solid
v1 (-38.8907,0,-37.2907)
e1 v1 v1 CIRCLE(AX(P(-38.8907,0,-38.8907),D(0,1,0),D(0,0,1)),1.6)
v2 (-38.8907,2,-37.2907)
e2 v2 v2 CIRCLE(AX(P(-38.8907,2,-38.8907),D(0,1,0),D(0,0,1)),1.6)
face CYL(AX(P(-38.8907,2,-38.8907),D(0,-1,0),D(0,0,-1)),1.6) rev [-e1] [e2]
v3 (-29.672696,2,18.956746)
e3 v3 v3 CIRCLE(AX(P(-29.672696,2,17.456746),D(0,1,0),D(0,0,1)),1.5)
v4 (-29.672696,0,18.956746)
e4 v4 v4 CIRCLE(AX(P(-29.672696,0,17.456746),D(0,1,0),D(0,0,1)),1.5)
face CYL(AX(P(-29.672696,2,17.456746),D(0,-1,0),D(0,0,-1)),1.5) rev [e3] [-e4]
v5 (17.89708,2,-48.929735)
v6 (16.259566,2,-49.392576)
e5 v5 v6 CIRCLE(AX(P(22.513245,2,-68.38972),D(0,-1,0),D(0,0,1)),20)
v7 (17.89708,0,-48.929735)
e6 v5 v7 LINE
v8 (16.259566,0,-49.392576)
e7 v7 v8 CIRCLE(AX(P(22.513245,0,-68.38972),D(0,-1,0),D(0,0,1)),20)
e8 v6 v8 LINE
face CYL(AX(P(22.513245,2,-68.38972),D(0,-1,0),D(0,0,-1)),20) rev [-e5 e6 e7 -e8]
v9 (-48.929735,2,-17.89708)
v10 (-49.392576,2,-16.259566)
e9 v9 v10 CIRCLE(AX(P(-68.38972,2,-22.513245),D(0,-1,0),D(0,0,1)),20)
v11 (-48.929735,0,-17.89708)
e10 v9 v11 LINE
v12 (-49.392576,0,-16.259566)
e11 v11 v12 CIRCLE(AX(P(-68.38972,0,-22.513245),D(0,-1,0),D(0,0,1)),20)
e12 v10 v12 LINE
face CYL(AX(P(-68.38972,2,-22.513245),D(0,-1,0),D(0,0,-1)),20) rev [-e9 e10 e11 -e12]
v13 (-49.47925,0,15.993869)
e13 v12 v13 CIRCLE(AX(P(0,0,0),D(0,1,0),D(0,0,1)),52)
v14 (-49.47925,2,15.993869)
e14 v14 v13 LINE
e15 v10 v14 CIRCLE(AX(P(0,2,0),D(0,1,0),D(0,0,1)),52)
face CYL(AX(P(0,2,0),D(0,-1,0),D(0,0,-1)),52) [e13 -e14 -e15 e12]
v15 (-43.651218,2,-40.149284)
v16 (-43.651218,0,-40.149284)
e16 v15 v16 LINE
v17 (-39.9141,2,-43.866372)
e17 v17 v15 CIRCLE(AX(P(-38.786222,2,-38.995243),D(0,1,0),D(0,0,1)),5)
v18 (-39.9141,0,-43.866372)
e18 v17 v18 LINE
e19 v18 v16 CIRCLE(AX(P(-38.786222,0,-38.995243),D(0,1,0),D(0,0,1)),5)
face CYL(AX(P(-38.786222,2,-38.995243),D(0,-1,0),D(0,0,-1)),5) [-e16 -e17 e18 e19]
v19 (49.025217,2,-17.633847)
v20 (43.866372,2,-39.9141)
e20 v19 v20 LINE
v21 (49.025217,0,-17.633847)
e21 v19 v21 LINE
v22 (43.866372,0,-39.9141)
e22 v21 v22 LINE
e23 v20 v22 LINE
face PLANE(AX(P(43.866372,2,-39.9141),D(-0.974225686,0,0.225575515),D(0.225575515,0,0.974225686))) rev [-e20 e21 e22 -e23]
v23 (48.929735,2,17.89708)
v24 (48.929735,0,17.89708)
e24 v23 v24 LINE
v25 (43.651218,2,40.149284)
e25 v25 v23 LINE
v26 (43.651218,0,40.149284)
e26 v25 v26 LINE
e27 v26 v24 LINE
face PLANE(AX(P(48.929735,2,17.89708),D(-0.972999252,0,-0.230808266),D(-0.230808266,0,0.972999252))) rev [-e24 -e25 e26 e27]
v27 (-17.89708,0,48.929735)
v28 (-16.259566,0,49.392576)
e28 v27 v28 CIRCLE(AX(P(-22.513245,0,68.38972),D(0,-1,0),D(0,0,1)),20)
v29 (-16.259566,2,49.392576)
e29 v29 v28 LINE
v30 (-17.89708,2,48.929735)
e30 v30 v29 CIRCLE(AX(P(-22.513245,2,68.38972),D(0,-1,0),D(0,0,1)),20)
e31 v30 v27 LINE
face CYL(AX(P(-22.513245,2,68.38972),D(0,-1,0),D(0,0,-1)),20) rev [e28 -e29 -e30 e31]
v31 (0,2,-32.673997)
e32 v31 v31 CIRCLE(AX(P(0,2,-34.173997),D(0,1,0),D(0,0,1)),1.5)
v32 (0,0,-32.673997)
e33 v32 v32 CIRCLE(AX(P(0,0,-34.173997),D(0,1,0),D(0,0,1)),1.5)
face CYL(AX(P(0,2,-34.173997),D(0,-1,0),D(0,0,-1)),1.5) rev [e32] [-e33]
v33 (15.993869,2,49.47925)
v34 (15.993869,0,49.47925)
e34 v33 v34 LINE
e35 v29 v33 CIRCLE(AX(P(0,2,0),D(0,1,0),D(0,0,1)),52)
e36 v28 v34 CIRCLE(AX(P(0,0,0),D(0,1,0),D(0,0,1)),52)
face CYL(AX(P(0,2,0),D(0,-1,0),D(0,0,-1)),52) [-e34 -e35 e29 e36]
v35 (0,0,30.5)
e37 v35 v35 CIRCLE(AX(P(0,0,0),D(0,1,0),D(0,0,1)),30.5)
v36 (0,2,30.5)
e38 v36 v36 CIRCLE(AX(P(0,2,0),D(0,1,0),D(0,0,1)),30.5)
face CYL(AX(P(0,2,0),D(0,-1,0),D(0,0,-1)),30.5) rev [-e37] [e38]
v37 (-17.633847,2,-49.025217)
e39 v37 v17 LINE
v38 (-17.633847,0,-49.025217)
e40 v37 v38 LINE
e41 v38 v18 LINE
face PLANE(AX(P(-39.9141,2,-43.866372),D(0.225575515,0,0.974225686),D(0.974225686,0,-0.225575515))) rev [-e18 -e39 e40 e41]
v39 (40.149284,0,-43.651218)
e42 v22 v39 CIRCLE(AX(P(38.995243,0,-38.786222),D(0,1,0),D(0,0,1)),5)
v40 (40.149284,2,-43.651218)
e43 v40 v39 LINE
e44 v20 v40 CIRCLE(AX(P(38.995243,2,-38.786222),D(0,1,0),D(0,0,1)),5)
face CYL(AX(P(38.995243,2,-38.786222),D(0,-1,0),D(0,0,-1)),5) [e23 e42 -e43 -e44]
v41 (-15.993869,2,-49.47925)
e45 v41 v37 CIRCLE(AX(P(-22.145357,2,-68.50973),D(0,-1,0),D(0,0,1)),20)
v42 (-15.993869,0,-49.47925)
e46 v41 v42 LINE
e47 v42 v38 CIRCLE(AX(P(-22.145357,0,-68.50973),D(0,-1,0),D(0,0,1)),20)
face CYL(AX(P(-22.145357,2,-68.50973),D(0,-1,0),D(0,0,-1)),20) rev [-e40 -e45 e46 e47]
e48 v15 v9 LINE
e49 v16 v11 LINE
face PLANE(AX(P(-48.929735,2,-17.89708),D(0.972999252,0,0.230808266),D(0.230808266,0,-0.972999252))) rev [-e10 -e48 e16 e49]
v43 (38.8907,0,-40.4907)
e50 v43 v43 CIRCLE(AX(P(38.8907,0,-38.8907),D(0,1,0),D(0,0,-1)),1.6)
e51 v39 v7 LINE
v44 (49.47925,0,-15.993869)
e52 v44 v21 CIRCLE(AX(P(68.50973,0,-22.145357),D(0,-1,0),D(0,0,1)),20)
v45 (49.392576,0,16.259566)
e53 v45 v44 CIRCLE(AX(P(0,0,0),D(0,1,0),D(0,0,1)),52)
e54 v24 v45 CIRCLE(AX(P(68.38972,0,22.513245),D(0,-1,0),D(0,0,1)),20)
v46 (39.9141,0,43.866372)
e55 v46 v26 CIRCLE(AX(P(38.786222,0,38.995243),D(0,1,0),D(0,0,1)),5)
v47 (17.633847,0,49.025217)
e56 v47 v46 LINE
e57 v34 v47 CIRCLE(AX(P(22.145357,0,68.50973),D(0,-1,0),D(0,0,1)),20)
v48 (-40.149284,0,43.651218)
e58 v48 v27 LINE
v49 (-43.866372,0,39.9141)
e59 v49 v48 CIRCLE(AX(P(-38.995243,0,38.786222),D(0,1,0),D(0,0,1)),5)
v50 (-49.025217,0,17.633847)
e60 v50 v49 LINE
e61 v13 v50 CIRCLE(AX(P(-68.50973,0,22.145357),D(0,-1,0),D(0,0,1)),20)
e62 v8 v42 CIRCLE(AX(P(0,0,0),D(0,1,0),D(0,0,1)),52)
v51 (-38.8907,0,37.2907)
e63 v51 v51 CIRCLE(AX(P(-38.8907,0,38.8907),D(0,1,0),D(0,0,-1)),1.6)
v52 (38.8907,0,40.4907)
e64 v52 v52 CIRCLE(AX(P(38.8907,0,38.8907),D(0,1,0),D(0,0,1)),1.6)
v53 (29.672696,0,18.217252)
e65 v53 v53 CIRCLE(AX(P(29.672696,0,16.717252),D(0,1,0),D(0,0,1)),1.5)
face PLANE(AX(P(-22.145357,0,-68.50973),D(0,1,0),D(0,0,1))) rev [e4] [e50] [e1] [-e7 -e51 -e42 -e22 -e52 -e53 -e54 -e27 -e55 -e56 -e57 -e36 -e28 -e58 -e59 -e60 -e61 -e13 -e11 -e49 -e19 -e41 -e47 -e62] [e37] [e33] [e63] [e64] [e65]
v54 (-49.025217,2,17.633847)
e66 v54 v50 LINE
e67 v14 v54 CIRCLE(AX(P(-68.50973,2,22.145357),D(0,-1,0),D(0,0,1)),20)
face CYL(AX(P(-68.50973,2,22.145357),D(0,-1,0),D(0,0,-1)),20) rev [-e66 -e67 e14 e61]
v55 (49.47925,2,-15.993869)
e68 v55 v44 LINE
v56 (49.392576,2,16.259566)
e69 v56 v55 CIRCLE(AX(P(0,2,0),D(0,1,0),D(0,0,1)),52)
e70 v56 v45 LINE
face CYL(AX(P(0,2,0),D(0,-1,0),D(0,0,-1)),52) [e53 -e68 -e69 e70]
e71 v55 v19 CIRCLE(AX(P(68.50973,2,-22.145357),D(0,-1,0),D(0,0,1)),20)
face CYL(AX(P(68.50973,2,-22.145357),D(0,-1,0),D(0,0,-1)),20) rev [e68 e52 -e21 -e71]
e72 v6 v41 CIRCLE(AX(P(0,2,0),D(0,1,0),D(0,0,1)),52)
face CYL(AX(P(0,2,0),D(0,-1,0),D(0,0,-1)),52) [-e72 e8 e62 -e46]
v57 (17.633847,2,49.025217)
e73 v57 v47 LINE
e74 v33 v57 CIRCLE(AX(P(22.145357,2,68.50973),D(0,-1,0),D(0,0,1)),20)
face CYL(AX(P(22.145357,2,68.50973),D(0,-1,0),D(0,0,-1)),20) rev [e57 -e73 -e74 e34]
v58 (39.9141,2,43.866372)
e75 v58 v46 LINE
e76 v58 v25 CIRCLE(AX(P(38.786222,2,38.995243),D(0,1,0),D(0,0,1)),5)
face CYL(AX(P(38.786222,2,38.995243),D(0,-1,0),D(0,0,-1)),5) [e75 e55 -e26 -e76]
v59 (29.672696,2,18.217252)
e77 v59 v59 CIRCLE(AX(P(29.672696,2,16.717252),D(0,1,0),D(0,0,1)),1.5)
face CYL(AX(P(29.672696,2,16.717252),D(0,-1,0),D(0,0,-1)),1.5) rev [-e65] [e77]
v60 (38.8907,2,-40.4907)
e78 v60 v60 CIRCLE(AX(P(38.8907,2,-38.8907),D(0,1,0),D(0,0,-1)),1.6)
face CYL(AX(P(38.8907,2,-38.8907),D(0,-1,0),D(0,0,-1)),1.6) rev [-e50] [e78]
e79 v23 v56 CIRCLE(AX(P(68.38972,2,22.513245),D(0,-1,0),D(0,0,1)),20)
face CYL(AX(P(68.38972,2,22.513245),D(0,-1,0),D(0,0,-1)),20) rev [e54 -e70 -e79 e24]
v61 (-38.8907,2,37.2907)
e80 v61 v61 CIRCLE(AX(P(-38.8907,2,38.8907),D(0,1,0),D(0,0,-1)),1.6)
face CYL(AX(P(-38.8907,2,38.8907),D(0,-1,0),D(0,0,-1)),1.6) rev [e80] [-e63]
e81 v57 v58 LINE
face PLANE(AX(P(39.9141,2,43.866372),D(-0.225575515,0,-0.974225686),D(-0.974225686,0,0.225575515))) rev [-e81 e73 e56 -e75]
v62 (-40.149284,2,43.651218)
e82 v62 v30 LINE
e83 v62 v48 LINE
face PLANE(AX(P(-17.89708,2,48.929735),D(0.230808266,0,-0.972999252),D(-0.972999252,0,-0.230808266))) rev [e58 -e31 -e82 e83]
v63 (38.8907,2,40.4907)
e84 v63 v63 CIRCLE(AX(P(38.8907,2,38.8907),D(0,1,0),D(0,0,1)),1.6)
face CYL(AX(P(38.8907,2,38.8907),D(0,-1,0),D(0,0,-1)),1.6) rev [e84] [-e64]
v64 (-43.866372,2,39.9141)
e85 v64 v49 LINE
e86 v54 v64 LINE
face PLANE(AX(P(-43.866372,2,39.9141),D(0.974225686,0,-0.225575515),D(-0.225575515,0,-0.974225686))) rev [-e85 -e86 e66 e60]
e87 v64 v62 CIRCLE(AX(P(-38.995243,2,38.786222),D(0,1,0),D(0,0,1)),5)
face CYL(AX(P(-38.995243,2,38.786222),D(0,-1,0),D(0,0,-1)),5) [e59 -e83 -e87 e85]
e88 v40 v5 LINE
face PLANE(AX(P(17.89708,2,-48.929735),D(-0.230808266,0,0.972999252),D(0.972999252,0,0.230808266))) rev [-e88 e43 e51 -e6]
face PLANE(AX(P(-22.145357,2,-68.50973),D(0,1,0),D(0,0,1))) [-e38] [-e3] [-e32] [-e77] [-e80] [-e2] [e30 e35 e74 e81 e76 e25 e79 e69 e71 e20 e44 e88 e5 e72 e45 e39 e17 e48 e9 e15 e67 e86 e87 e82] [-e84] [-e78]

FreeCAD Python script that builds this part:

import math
import FreeCAD as App
import Part
import Sketcher
from FreeCAD import Vector
Q = App.Units.Quantity

doc = App.newDocument("Part")
body = doc.addObject("PartDesign::Body", "Body")

# Sketch on XZ plane
sketch1 = body.newObject("Sketcher::SketchObject", "Sketch")
sketch1.AttachmentSupport = (doc.getObject("XZ_Plane"), [""])
sketch1.MapMode = "FlatFace"
sketch1.addGeometry(Part.LineSegment(Vector(40.1, -43.7, 0), Vector(17.9, -48.9, 0)), False)
sketch1.addGeometry(Part.ArcOfCircle(Part.Circle(Vector(22.5, -68.4, 0), Vector(0, 0, 1), 20), math.radians(103.34), math.radians(108.22)), False)
sketch1.addGeometry(Part.ArcOfCircle(Part.Circle(Vector(0, 0, 0), Vector(0, 0, 1), 52), math.radians(-89.85), math.radians(-71.78)), False)
sketch1.addGeometry(Part.ArcOfCircle(Part.Circle(Vector(0, 0, 0), Vector(0, 0, 1), 52), math.radians(-107.91), math.radians(-89.85)), False)
sketch1.addGeometry(Part.ArcOfCircle(Part.Circle(Vector(-22.1, -68.5, 0), Vector(0, 0, 1), 20), math.radians(72.09), math.radians(76.96)), False)
sketch1.addGeometry(Part.LineSegment(Vector(-17.6, -49, 0), Vector(-39.9, -43.9, 0)), False)
sketch1.addGeometry(Part.ArcOfCircle(Part.Circle(Vector(-38.8, -39, 0), Vector(0, 0, 1), 5), math.radians(-167), math.radians(-103)), False)
sketch1.addGeometry(Part.LineSegment(Vector(-43.7, -40.1, 0), Vector(-48.9, -17.9, 0)), False)
sketch1.addGeometry(Part.ArcOfCircle(Part.Circle(Vector(-68.4, -22.5, 0), Vector(0, 0, 1), 20), math.radians(13.34), math.radians(18.22)), False)
sketch1.addGeometry(Part.ArcOfCircle(Part.Circle(Vector(0, 0, 0), Vector(0, 0, 1), 52), math.radians(162), math.radians(198)), False)
sketch1.addGeometry(Part.ArcOfCircle(Part.Circle(Vector(-68.5, 22.1, 0), Vector(0, 0, 1), 20), math.radians(-17.91), math.radians(-13.04)), False)
sketch1.addGeometry(Part.LineSegment(Vector(-49, 17.6, 0), Vector(-43.9, 39.9, 0)), False)
sketch1.addGeometry(Part.ArcOfCircle(Part.Circle(Vector(-39, 38.8, 0), Vector(0, 0, 1), 5), math.radians(103), math.radians(167)), False)
sketch1.addGeometry(Part.LineSegment(Vector(-40.1, 43.7, 0), Vector(-17.9, 48.9, 0)), False)
sketch1.addGeometry(Part.ArcOfCircle(Part.Circle(Vector(-22.5, 68.4, 0), Vector(0, 0, 1), 20), math.radians(-76.66), math.radians(-71.78)), False)
sketch1.addGeometry(Part.ArcOfCircle(Part.Circle(Vector(0, 0, 0), Vector(0, 0, 1), 52), math.radians(72), math.radians(108)), False)
sketch1.addGeometry(Part.ArcOfCircle(Part.Circle(Vector(22.1, 68.5, 0), Vector(0, 0, 1), 20), math.radians(-107.91), math.radians(-103.04)), False)
sketch1.addGeometry(Part.LineSegment(Vector(17.6, 49, 0), Vector(39.9, 43.9, 0)), False)
sketch1.addGeometry(Part.ArcOfCircle(Part.Circle(Vector(38.8, 39, 0), Vector(0, 0, 1), 5), math.radians(13), math.radians(77)), False)
sketch1.addGeometry(Part.LineSegment(Vector(43.7, 40.1, 0), Vector(48.9, 17.9, 0)), False)
sketch1.addGeometry(Part.ArcOfCircle(Part.Circle(Vector(68.4, 22.5, 0), Vector(0, 0, 1), 20), math.radians(-166.66), math.radians(-161.78)), False)
sketch1.addGeometry(Part.ArcOfCircle(Part.Circle(Vector(0, 0, 0), Vector(0, 0, 1), 52), math.radians(-18), math.radians(18)), False)
sketch1.addGeometry(Part.ArcOfCircle(Part.Circle(Vector(68.5, -22.1, 0), Vector(0, 0, 1), 20), math.radians(162.09), math.radians(166.96)), False)
sketch1.addGeometry(Part.LineSegment(Vector(49, -17.6, 0), Vector(43.9, -39.9, 0)), False)
sketch1.addGeometry(Part.ArcOfCircle(Part.Circle(Vector(39, -38.8, 0), Vector(0, 0, 1), 5), math.radians(-77), math.radians(-13)), False)
sketch1.addGeometry(Part.Circle(Vector(38.9, 38.9, 0), Vector(0, 0, 1), 1.6), False)
sketch1.addGeometry(Part.Circle(Vector(29.7, 16.7, 0), Vector(0, 0, 1), 1.5), False)
sketch1.addGeometry(Part.Circle(Vector(-38.9, 38.9, 0), Vector(0, 0, 1), 1.6), False)
sketch1.addGeometry(Part.Circle(Vector(-29.7, 17.5, 0), Vector(0, 0, 1), 1.5), False)
sketch1.addGeometry(Part.Circle(Vector(38.9, -38.9, 0), Vector(0, 0, 1), 1.6), False)
sketch1.addGeometry(Part.Circle(Vector(0, 0, 0), Vector(0, 0, 1), 30.5), False)
sketch1.addGeometry(Part.Circle(Vector(0, -34.2, 0), Vector(0, 0, 1), 1.5), False)
sketch1.addGeometry(Part.Circle(Vector(-38.9, -38.9, 0), Vector(0, 0, 1), 1.6), False)
sketch1.addConstraint(Sketcher.Constraint("Tangent", 0, 2, 1, 1))
sketch1.addConstraint(Sketcher.Constraint("Tangent", 1, 2, 2, 2))
sketch1.addConstraint(Sketcher.Constraint("Tangent", 2, 1, 3, 2))
sketch1.addConstraint(Sketcher.Constraint("Tangent", 3, 1, 4, 1))
sketch1.addConstraint(Sketcher.Constraint("Tangent", 4, 2, 5, 1))
sketch1.addConstraint(Sketcher.Constraint("Tangent", 5, 2, 6, 2))
sketch1.addConstraint(Sketcher.Constraint("Tangent", 6, 1, 7, 1))
sketch1.addConstraint(Sketcher.Constraint("Tangent", 7, 2, 8, 1))
sketch1.addConstraint(Sketcher.Constraint("Tangent", 8, 2, 9, 2))
sketch1.addConstraint(Sketcher.Constraint("Tangent", 9, 1, 10, 1))
sketch1.addConstraint(Sketcher.Constraint("Tangent", 10, 2, 11, 1))
sketch1.addConstraint(Sketcher.Constraint("Tangent", 11, 2, 12, 2))
sketch1.addConstraint(Sketcher.Constraint("Tangent", 12, 1, 13, 1))
sketch1.addConstraint(Sketcher.Constraint("Tangent", 13, 2, 14, 1))
sketch1.addConstraint(Sketcher.Constraint("Tangent", 14, 2, 15, 2))
sketch1.addConstraint(Sketcher.Constraint("Tangent", 15, 1, 16, 1))
sketch1.addConstraint(Sketcher.Constraint("Tangent", 16, 2, 17, 1))
sketch1.addConstraint(Sketcher.Constraint("Tangent", 17, 2, 18, 2))
sketch1.addConstraint(Sketcher.Constraint("Tangent", 18, 1, 19, 1))
sketch1.addConstraint(Sketcher.Constraint("Tangent", 19, 2, 20, 1))
sketch1.addConstraint(Sketcher.Constraint("Tangent", 20, 2, 21, 2))
sketch1.addConstraint(Sketcher.Constraint("Tangent", 21, 1, 22, 1))
sketch1.addConstraint(Sketcher.Constraint("Tangent", 22, 2, 23, 1))
sketch1.addConstraint(Sketcher.Constraint("Tangent", 23, 2, 24, 2))
sketch1.addConstraint(Sketcher.Constraint("Tangent", 24, 1, 0, 1))
sketch1.addConstraint(Sketcher.Constraint("Coincident", 2, 3, -1, 1))
sketch1.addConstraint(Sketcher.Constraint("Coincident", 9, 3, -1, 1))
sketch1.addConstraint(Sketcher.Constraint("Coincident", 15, 3, -1, 1))
sketch1.addConstraint(Sketcher.Constraint("Coincident", 21, 3, -1, 1))
sketch1.addConstraint(Sketcher.Constraint("Coincident", 30, 3, -1, 1))
sketch1.addConstraint(Sketcher.Constraint("Equal", 2, 3))
sketch1.addConstraint(Sketcher.Constraint("Equal", 1, 4))
sketch1.addConstraint(Sketcher.Constraint("Equal", 4, 8))
sketch1.addConstraint(Sketcher.Constraint("Equal", 3, 9))
sketch1.addConstraint(Sketcher.Constraint("Equal", 8, 10))
sketch1.addConstraint(Sketcher.Constraint("Equal", 6, 12))
sketch1.addConstraint(Sketcher.Constraint("Equal", 10, 14))
sketch1.addConstraint(Sketcher.Constraint("Equal", 9, 15))
sketch1.addConstraint(Sketcher.Constraint("Equal", 14, 16))
sketch1.addConstraint(Sketcher.Constraint("Equal", 12, 18))
sketch1.addConstraint(Sketcher.Constraint("Equal", 16, 20))
sketch1.addConstraint(Sketcher.Constraint("Equal", 15, 21))
sketch1.addConstraint(Sketcher.Constraint("Equal", 20, 22))
sketch1.addConstraint(Sketcher.Constraint("Equal", 18, 24))
sketch1.addConstraint(Sketcher.Constraint("Equal", 25, 27))
sketch1.addConstraint(Sketcher.Constraint("Equal", 26, 28))
sketch1.addConstraint(Sketcher.Constraint("Equal", 27, 29))
sketch1.addConstraint(Sketcher.Constraint("Equal", 28, 31))
sketch1.addConstraint(Sketcher.Constraint("Equal", 29, 32))
sketch1.addConstraint(Sketcher.Constraint("Symmetric", 6, 3, 18, 3, -1, 1))
sketch1.addConstraint(Sketcher.Constraint("Symmetric", 12, 3, 24, 3, -1, 1))
sketch1.addConstraint(Sketcher.Constraint("Symmetric", 27, 3, 29, 3, -1, 1))
sketch1.addConstraint(Sketcher.Constraint("Symmetric", 25, 3, 32, 3, -1, 1))
sketch1.addConstraint(Sketcher.Constraint("Symmetric", 25, 3, 27, 3, -2))
sketch1.addConstraint(Sketcher.Constraint("PointOnObject", 31, 3, -2))
sketch1.addConstraint(Sketcher.Constraint("Perpendicular", 0, 7))
sketch1.addConstraint(Sketcher.Constraint("Perpendicular", 5, 11))
sketch1.addConstraint(Sketcher.Constraint("Perpendicular", 7, 13))
sketch1.addConstraint(Sketcher.Constraint("Perpendicular", 11, 17))
sketch1.addConstraint(Sketcher.Constraint("Perpendicular", 13, 19))
sketch1.addConstraint(Sketcher.Constraint("Perpendicular", 17, 23))
sketch1.addConstraint(Sketcher.Constraint("Equal", 0, 5))
sketch1.addConstraint(Sketcher.Constraint("Equal", 5, 7))
sketch1.addConstraint(Sketcher.Constraint("Equal", 7, 11))
sketch1.addConstraint(Sketcher.Constraint("Diameter", 26, Q("3 mm")))
sketch1.addConstraint(Sketcher.Constraint("Diameter", 30, Q("61 mm")))
sketch1.addConstraint(Sketcher.Constraint("Radius", 1, Q("20 mm")))
sketch1.addConstraint(Sketcher.Constraint("Radius", 2, Q("52 mm")))
sketch1.addConstraint(Sketcher.Constraint("Radius", 6, Q("5 mm")))
sketch1.addConstraint(Sketcher.Constraint("Diameter", 25, Q("3.2 mm")))
sketch1.addConstraint(Sketcher.Constraint("DistanceY", 6, 3, 8, 3, Q("16.481998 mm")))
sketch1.addConstraint(Sketcher.Constraint("DistanceX", -1, 1, 25, 3, Q("38.8907 mm")))
sketch1.addConstraint(Sketcher.Constraint("DistanceY", -1, 1, 25, 3, Q("38.8907 mm")))
sketch1.addConstraint(Sketcher.Constraint("DistanceX", 5, 2, -1, 1, Q("39.9141 mm")))
sketch1.addConstraint(Sketcher.Constraint("DistanceX", 4, 3, 1, 3, Q("44.658602 mm")))
sketch1.addConstraint(Sketcher.Constraint("DistanceY", 28, 3, 10, 2, Q("0.177101 mm")))
sketch1.addConstraint(Sketcher.Constraint("DistanceY", -1, 1, 26, 3, Q("16.717252 mm")))
sketch1.addConstraint(Sketcher.Constraint("DistanceX", -1, 1, 2, 1, Q("0.139738 mm")))
sketch1.addConstraint(Sketcher.Constraint("DistanceY", 1, 2, 31, 3, Q("15.218578 mm")))
sketch1.addConstraint(Sketcher.Constraint("DistanceX", 10, 2, 28, 3, Q("19.35252 mm")))
sketch1.addConstraint(Sketcher.Constraint("DistanceX", 26, 3, 18, 1, Q("13.978522 mm")))
pad1 = body.newObject("PartDesign::Pad", "Pad")
pad1.Profile = sketch1
pad1.Length = 2
pad1.Reversed = True

doc.recompute()
